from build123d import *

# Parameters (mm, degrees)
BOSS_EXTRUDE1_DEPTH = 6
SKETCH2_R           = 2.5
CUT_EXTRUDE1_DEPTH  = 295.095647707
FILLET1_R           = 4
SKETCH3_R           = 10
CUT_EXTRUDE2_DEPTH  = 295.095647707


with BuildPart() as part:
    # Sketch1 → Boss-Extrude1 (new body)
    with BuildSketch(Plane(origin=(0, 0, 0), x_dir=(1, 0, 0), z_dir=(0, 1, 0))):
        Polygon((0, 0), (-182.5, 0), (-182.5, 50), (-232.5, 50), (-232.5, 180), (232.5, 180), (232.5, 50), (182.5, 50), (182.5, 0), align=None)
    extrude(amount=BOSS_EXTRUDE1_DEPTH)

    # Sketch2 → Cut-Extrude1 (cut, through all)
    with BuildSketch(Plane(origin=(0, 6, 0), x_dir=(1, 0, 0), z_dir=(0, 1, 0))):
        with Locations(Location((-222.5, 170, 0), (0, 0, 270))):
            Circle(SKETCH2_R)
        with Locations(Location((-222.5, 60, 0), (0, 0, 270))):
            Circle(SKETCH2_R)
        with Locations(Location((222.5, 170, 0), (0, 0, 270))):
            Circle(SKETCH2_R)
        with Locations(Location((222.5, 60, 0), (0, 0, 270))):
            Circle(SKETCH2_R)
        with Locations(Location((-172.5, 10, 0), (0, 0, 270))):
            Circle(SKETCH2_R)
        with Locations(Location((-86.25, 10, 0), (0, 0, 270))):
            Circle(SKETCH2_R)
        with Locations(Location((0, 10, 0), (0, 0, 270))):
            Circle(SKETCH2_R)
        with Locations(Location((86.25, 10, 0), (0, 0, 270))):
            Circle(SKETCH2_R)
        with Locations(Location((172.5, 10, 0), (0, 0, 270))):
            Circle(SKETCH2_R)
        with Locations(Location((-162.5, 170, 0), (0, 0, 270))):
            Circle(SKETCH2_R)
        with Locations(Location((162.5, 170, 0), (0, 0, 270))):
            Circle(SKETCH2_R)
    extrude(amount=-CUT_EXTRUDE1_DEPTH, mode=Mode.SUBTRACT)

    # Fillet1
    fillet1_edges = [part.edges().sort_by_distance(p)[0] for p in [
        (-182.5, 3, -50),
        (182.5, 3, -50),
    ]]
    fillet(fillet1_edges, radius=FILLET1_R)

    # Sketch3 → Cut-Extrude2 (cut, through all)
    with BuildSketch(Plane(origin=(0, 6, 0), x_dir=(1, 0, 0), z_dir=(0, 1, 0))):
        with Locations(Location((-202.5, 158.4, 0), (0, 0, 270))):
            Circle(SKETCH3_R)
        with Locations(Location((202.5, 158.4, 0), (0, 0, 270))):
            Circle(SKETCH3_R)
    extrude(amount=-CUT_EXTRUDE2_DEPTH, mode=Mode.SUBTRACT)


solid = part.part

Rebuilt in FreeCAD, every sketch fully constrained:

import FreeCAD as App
import Part
import Sketcher


def edges_at(feature, points):
    """Names of the edges that pass closest to the given points."""
    edges = feature.Shape.Edges
    near = lambda p: min(range(len(edges)), key=lambda i: edges[i].distToShape(Part.Vertex(*p))[0])
    return sorted({f"Edge{near(p) + 1}" for p in points})


def add_polygon(sketch, points):
    """Adds a closed chain of lines whose ends are joined by coincident constraints."""
    first, n = sketch.GeometryCount, len(points)
    for a, b in zip(points, points[1:] + points[:1]):
        sketch.addGeometry(Part.LineSegment(App.Vector(*a, 0), App.Vector(*b, 0)), False)
    for i in range(n):
        sketch.addConstraint(Sketcher.Constraint("Coincident", first + i, 2, first + (i + 1) % n, 1))

doc = App.newDocument("Part")
body = doc.addObject("PartDesign::Body", "Body")

# Sketch on XZ plane
sketch1 = body.newObject("Sketcher::SketchObject", "Sketch")
sketch1.AttachmentSupport = (doc.getObject("XZ_Plane"), [""])
sketch1.MapMode = "FlatFace"
add_polygon(sketch1, [(-182, 0), (182, 0), (182, -50), (232, -50), (232, -180), (-232, -180), (-232, -50), (-182, -50)])  # lines 0-7
sketch1.addConstraint([
    Sketcher.Constraint("Horizontal", 0),
    Sketcher.Constraint("Vertical", 1),
    Sketcher.Constraint("Horizontal", 2),
    Sketcher.Constraint("Vertical", 3),
    Sketcher.Constraint("Horizontal", 4),
    Sketcher.Constraint("Vertical", 5),
    Sketcher.Constraint("Horizontal", 6),
    Sketcher.Constraint("Vertical", 7),
    Sketcher.Constraint("Symmetric", 0, 2, 7, 2, -1, 1),
    Sketcher.Constraint("Symmetric", 2, 2, 5, 2, -2),
    Sketcher.Constraint("Equal", 6, 1),
    Sketcher.Constraint("DistanceX", 0, 1, 0, 2, 365.0),
    Sketcher.Constraint("DistanceX", 2, 1, 2, 2, 50.0),
    Sketcher.Constraint("DistanceY", 3, 2, 3, 1, 130.0),
])
pad1 = body.newObject("PartDesign::Pad", "Pad")
pad1.Profile = sketch1
pad1.Length = 6
pad1.Reversed = True

# Sketch on XZ plane
sketch2 = body.newObject("Sketcher::SketchObject", "Sketch001")
sketch2.AttachmentSupport = (doc.getObject("XZ_Plane"), [""])
sketch2.MapMode = "FlatFace"
sketch2.AttachmentOffset = App.Placement(App.Vector(0, 0, -6), App.Rotation())
sketch2.addGeometry([
    Part.Circle(App.Vector(-222.5, -170, 0), App.Vector(0, 0, 1), 2.5),  # 0
    Part.Circle(App.Vector(-222.5, -60, 0), App.Vector(0, 0, 1), 2.5),  # 1
    Part.Circle(App.Vector(222.5, -170, 0), App.Vector(0, 0, 1), 2.5),  # 2
    Part.Circle(App.Vector(222.5, -60, 0), App.Vector(0, 0, 1), 2.5),  # 3
    Part.Circle(App.Vector(-172.5, -10, 0), App.Vector(0, 0, 1), 2.5),  # 4
    Part.Circle(App.Vector(-86.2, -10, 0), App.Vector(0, 0, 1), 2.5),  # 5
    Part.Circle(App.Vector(0, -10, 0), App.Vector(0, 0, 1), 2.5),  # 6
    Part.Circle(App.Vector(86.2, -10, 0), App.Vector(0, 0, 1), 2.5),  # 7
    Part.Circle(App.Vector(172.5, -10, 0), App.Vector(0, 0, 1), 2.5),  # 8
    Part.Circle(App.Vector(-162.5, -170, 0), App.Vector(0, 0, 1), 2.5),  # 9
    Part.Circle(App.Vector(162.5, -170, 0), App.Vector(0, 0, 1), 2.5),  # 10
], False)
sketch2.addConstraint([
    Sketcher.Constraint("Equal", 0, 1),
    Sketcher.Constraint("Equal", 1, 2),
    Sketcher.Constraint("Equal", 2, 3),
    Sketcher.Constraint("Equal", 3, 4),
    Sketcher.Constraint("Equal", 4, 5),
    Sketcher.Constraint("Equal", 5, 6),
    Sketcher.Constraint("Equal", 6, 7),
    Sketcher.Constraint("Equal", 7, 8),
    Sketcher.Constraint("Equal", 8, 9),
    Sketcher.Constraint("Equal", 9, 10),
    Sketcher.Constraint("Symmetric", 0, 3, 2, 3, -2),
    Sketcher.Constraint("Symmetric", 1, 3, 3, 3, -2),
    Sketcher.Constraint("Symmetric", 5, 3, 7, 3, -2),
    Sketcher.Constraint("Symmetric", 4, 3, 8, 3, -2),
    Sketcher.Constraint("Symmetric", 9, 3, 10, 3, -2),
    Sketcher.Constraint("PointOnObject", 6, 3, -2),
    Sketcher.Constraint("Horizontal", 4, 3, 5, 3),
    Sketcher.Constraint("Horizontal", 5, 3, 6, 3),
    Sketcher.Constraint("Horizontal", 2, 3, 9, 3),
    Sketcher.Constraint("Vertical", 0, 3, 1, 3),
    Sketcher.Constraint("Diameter", 0, 5.0),
    Sketcher.Constraint("DistanceY", 0, 3, -1, 1, 170.0),
    Sketcher.Constraint("DistanceY", 1, 3, -1, 1, 60.0),
    Sketcher.Constraint("DistanceY", 4, 3, -1, 1, 10.0),
    Sketcher.Constraint("DistanceX", 0, 3, 2, 3, 445.0),
    Sketcher.Constraint("DistanceX", 1, 3, 4, 3, 50.0),
    Sketcher.Constraint("DistanceX", 0, 3, 9, 3, 60.0),
    Sketcher.Constraint("DistanceX", 5, 3, 7, 3, 172.5),
])
pocket1 = body.newObject("PartDesign::Pocket", "Pocket")
pocket1.Profile = sketch2
pocket1.Type = "ThroughAll"
pocket1.Reversed = True
doc.recompute()

fillet = body.newObject("PartDesign::Fillet", "Fillet")
fillet.Base = (pocket1, edges_at(pocket1, [(-182.5, 3, -50), (182.5, 3, -50)]))
fillet.Radius = 4

# Sketch on XZ plane
sketch3 = body.newObject("Sketcher::SketchObject", "Sketch002")
sketch3.AttachmentSupport = (doc.getObject("XZ_Plane"), [""])
sketch3.MapMode = "FlatFace"
sketch3.AttachmentOffset = App.Placement(App.Vector(0, 0, -6), App.Rotation())
sketch3.addGeometry([
    Part.Circle(App.Vector(-202, -158, 0), App.Vector(0, 0, 1), 10),
    Part.Circle(App.Vector(202, -158, 0), App.Vector(0, 0, 1), 10),
], False)
sketch3.addConstraint([
    Sketcher.Constraint("Equal", 0, 1),
    Sketcher.Constraint("Symmetric", 0, 3, 1, 3, -2),
    Sketcher.Constraint("Diameter", 0, 20.0),
    Sketcher.Constraint("DistanceX", 0, 3, 1, 3, 405.0),
    Sketcher.Constraint("DistanceY", 0, 3, -1, 1, 158.4),
])
pocket2 = body.newObject("PartDesign::Pocket", "Pocket001")
pocket2.Profile = sketch3
pocket2.Type = "ThroughAll"
pocket2.Reversed = True

doc.recompute()
